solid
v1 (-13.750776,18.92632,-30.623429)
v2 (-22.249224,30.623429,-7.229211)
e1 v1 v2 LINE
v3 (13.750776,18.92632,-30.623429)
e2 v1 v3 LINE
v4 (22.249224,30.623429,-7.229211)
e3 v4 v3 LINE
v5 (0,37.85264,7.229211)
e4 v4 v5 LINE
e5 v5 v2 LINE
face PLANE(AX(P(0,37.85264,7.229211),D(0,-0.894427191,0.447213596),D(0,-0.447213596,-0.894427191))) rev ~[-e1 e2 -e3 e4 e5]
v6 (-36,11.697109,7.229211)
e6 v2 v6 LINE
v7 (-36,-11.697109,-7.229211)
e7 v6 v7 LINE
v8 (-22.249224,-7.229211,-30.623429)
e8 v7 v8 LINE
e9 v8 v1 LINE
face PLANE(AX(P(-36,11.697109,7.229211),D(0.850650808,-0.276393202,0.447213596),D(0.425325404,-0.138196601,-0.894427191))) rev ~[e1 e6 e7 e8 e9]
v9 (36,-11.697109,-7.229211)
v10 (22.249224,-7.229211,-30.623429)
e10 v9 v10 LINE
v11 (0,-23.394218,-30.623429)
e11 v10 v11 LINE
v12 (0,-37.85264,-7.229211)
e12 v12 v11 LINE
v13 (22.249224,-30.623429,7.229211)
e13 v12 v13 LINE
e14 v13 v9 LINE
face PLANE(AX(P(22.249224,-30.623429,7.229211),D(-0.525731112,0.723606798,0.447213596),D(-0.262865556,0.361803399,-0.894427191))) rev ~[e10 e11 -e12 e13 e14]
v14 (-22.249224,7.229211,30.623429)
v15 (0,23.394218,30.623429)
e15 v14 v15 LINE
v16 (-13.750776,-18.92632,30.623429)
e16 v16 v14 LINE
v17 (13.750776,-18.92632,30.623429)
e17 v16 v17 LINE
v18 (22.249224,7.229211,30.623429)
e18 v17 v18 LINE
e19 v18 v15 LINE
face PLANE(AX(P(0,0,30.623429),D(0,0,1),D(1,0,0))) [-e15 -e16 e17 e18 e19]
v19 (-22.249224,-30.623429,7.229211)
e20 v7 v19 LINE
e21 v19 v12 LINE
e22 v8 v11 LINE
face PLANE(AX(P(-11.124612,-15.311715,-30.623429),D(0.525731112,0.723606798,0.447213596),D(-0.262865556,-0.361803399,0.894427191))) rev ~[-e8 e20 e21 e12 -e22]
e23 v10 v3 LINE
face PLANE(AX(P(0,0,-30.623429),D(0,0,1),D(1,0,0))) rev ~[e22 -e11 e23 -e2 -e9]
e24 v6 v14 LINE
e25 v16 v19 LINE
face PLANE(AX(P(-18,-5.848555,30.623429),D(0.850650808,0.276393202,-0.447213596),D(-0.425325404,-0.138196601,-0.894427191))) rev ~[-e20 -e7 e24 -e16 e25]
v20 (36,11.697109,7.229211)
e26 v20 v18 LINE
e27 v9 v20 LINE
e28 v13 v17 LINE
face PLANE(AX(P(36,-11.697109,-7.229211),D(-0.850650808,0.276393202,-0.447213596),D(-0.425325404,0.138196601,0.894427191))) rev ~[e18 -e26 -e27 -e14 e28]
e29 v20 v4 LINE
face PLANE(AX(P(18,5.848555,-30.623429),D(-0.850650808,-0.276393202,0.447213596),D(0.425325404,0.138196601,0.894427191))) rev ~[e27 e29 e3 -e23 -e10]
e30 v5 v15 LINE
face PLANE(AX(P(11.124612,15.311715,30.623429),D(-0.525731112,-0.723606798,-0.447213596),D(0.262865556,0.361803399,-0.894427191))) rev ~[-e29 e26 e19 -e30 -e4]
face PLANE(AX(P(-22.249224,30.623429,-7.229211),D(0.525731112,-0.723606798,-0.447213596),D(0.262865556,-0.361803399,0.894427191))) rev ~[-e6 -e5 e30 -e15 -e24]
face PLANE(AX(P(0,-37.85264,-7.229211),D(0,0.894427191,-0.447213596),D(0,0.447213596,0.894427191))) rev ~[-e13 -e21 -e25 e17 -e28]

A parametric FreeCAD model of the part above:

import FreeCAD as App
import Part
import Sketcher
from FreeCAD import Vector
Q = App.Units.Quantity

doc = App.newDocument("Part")
body = doc.addObject("PartDesign::Body", "Body")

sketch1 = body.newObject("Sketcher::SketchObject", "Sketch")
sketch1.AttachmentSupport = (doc.getObject("XY_Plane"), [""])
sketch1.MapMode = "FlatFace"
sketch1.addGeometry(Part.LineSegment(Vector(-36, 12, 0), Vector(-36, -12, 0)), False)
sketch1.addGeometry(Part.LineSegment(Vector(-36, -12, 0), Vector(-22, -31, 0)), False)
sketch1.addGeometry(Part.LineSegment(Vector(-22, -31, 0), Vector(0, -38, 0)), False)
sketch1.addGeometry(Part.LineSegment(Vector(0, -38, 0), Vector(22, -31, 0)), False)
sketch1.addGeometry(Part.LineSegment(Vector(22, -31, 0), Vector(36, -12, 0)), False)
sketch1.addGeometry(Part.LineSegment(Vector(36, -12, 0), Vector(36, 12, 0)), False)
sketch1.addGeometry(Part.LineSegment(Vector(36, 12, 0), Vector(22, 31, 0)), False)
sketch1.addGeometry(Part.LineSegment(Vector(22, 31, 0), Vector(0, 38, 0)), False)
sketch1.addGeometry(Part.LineSegment(Vector(0, 38, 0), Vector(-22, 31, 0)), False)
sketch1.addGeometry(Part.LineSegment(Vector(-22, 31, 0), Vector(-36, 12, 0)), False)
sketch1.addConstraint(Sketcher.Constraint("Coincident", 0, 2, 1, 1))
sketch1.addConstraint(Sketcher.Constraint("Coincident", 1, 2, 2, 1))
sketch1.addConstraint(Sketcher.Constraint("Coincident", 2, 2, 3, 1))
sketch1.addConstraint(Sketcher.Constraint("Coincident", 3, 2, 4, 1))
sketch1.addConstraint(Sketcher.Constraint("Coincident", 4, 2, 5, 1))
sketch1.addConstraint(Sketcher.Constraint("Coincident", 5, 2, 6, 1))
sketch1.addConstraint(Sketcher.Constraint("Coincident", 6, 2, 7, 1))
sketch1.addConstraint(Sketcher.Constraint("Coincident", 7, 2, 8, 1))
sketch1.addConstraint(Sketcher.Constraint("Coincident", 8, 2, 9, 1))
sketch1.addConstraint(Sketcher.Constraint("Coincident", 9, 2, 0, 1))
sketch1.addConstraint(Sketcher.Constraint("Vertical", 0))
sketch1.addConstraint(Sketcher.Constraint("Vertical", 5))
sketch1.addConstraint(Sketcher.Constraint("Symmetric", 0, 2, 5, 2, -1, 1))
sketch1.addConstraint(Sketcher.Constraint("Symmetric", 1, 2, 6, 2, -1, 1))
sketch1.addConstraint(Sketcher.Constraint("Symmetric", 2, 2, 7, 2, -1, 1))
sketch1.addConstraint(Sketcher.Constraint("Symmetric", 3, 2, 8, 2, -1, 1))
sketch1.addConstraint(Sketcher.Constraint("Symmetric", 1, 2, 3, 2, -2))
sketch1.addConstraint(Sketcher.Constraint("PointOnObject", 2, 2, -2))
sketch1.addConstraint(Sketcher.Constraint("Parallel", 4, 9))
sketch1.addConstraint(Sketcher.Constraint("Horizontal", 0, 2, 4, 2))
sketch1.addConstraint(Sketcher.Constraint("Equal", 1, 2))
sketch1.addConstraint(Sketcher.Constraint("Angle", 1, Q("-54 deg")))
sketch1.addConstraint(Sketcher.Constraint("Angle", 2, Q("-18 deg")))
sketch1.addConstraint(Sketcher.Constraint("DistanceX", 0, 2, -1, 1, 36.0))
sketch1.addConstraint(Sketcher.Constraint("DistanceY", 0, 2, 0, 1, 23.394218))
pad1 = body.newObject("PartDesign::Pad", "Pad")
pad1.Profile = sketch1
pad1.Length = 61.246858
pad1.Midplane = True

sketch2 = body.newObject("Sketcher::SketchObject", "Sketch001")
sketch2.AttachmentSupport = (doc.getObject("YZ_Plane"), [""])
sketch2.MapMode = "FlatFace"
sketch2.addGeometry(Part.LineSegment(Vector(-38, -7, 0), Vector(-19, 31, 0)), False)
sketch2.addGeometry(Part.LineSegment(Vector(-19, 31, 0), Vector(-38, 31, 0)), False)
sketch2.addGeometry(Part.LineSegment(Vector(-38, 31, 0), Vector(-38, -7, 0)), False)
sketch2.addConstraint(Sketcher.Constraint("Coincident", 0, 2, 1, 1))
sketch2.addConstraint(Sketcher.Constraint("Coincident", 1, 2, 2, 1))
sketch2.addConstraint(Sketcher.Constraint("Coincident", 2, 2, 0, 1))
sketch2.addConstraint(Sketcher.Constraint("Horizontal", 1))
sketch2.addConstraint(Sketcher.Constraint("Vertical", 2))
sketch2.addConstraint(Sketcher.Constraint("DistanceX", 1, 2, 1, 1, 18.92632))
sketch2.addConstraint(Sketcher.Constraint("DistanceY", 2, 2, 2, 1, 37.85264))
sketch2.addConstraint(Sketcher.Constraint("DistanceX", 0, 2, -1, 1, 18.92632))
sketch2.addConstraint(Sketcher.Constraint("DistanceY", -1, 1, 0, 2, 30.623429))
pocket1 = body.newObject("PartDesign::Pocket", "Pocket")
pocket1.Profile = sketch2
pocket1.Length = 100
pocket1.Midplane = True

sketch3 = body.newObject("Sketcher::SketchObject", "Sketch002")
sketch3.Placement = App.Placement(Vector(0, 0, 0), App.Rotation(Vector(-0.951056516, 0.309016994, 0), Vector(0, 0, 0.999999999), Vector(0.309016994, 0.951056516, 0), "ZXY"))
sketch3.addGeometry(Part.LineSegment(Vector(-38, -7, 0), Vector(-19, 31, 0)), False)
sketch3.addGeometry(Part.LineSegment(Vector(-19, 31, 0), Vector(-38, 31, 0)), False)
sketch3.addGeometry(Part.LineSegment(Vector(-38, 31, 0), Vector(-38, -7, 0)), False)
sketch3.addConstraint(Sketcher.Constraint("Coincident", 0, 2, 1, 1))
sketch3.addConstraint(Sketcher.Constraint("Coincident", 1, 2, 2, 1))
sketch3.addConstraint(Sketcher.Constraint("Coincident", 2, 2, 0, 1))
sketch3.addConstraint(Sketcher.Constraint("Horizontal", 1))
sketch3.addConstraint(Sketcher.Constraint("Vertical", 2))
sketch3.addConstraint(Sketcher.Constraint("DistanceX", 1, 2, 1, 1, 18.92632))
sketch3.addConstraint(Sketcher.Constraint("DistanceY", 2, 2, 2, 1, 37.85264))
sketch3.addConstraint(Sketcher.Constraint("DistanceX", 0, 2, -1, 1, 18.92632))
sketch3.addConstraint(Sketcher.Constraint("DistanceY", -1, 1, 0, 2, 30.623429))
pocket2 = body.newObject("PartDesign::Pocket", "Pocket001")
pocket2.Profile = sketch3
pocket2.Length = 1000
pocket2.Midplane = True

sketch4 = body.newObject("Sketcher::SketchObject", "Sketch003")
sketch4.Placement = App.Placement(Vector(0, 0, 0), App.Rotation(Vector(0.587785252, 0.809016994, 0), Vector(0, 0, 0.999999999), Vector(0.809016994, -0.587785252, 0), "ZXY"))
sketch4.addGeometry(Part.LineSegment(Vector(38, -7, 0), Vector(38, 31, 0)), False)
sketch4.addGeometry(Part.LineSegment(Vector(38, 31, 0), Vector(19, 31, 0)), False)
sketch4.addGeometry(Part.LineSegment(Vector(19, 31, 0), Vector(38, -7, 0)), False)
sketch4.addConstraint(Sketcher.Constraint("Coincident", 0, 2, 1, 1))
sketch4.addConstraint(Sketcher.Constraint("Coincident", 1, 2, 2, 1))
sketch4.addConstraint(Sketcher.Constraint("Coincident", 2, 2, 0, 1))
sketch4.addConstraint(Sketcher.Constraint("Vertical", 0))
sketch4.addConstraint(Sketcher.Constraint("Horizontal", 1))
sketch4.addConstraint(Sketcher.Constraint("DistanceX", 1, 2, 1, 1, 18.92632))
sketch4.addConstraint(Sketcher.Constraint("DistanceY", 0, 1, 0, 2, 37.85264))
sketch4.addConstraint(Sketcher.Constraint("DistanceX", -1, 1, 0, 2, 37.85264))
sketch4.addConstraint(Sketcher.Constraint("DistanceY", -1, 1, 0, 2, 30.623429))
pocket3 = body.newObject("PartDesign::Pocket", "Pocket002")
pocket3.Profile = sketch4
pocket3.Length = 1000
pocket3.Midplane = True

sketch5 = body.newObject("Sketcher::SketchObject", "Sketch004")
sketch5.Placement = App.Placement(Vector(0, 0, 0), App.Rotation(Vector(0.587785252, -0.809016994, 0), Vector(0, 0, 0.999999999), Vector(-0.809016994, -0.587785252, 0), "ZXY"))
sketch5.addGeometry(Part.LineSegment(Vector(-19, 31, 0), Vector(-38, 31, 0)), False)
sketch5.addGeometry(Part.LineSegment(Vector(-38, 31, 0), Vector(-38, -7, 0)), False)
sketch5.addGeometry(Part.LineSegment(Vector(-38, -7, 0), Vector(-19, 31, 0)), False)
sketch5.addConstraint(Sketcher.Constraint("Coincident", 0, 2, 1, 1))
sketch5.addConstraint(Sketcher.Constraint("Coincident", 1, 2, 2, 1))
sketch5.addConstraint(Sketcher.Constraint("Coincident", 2, 2, 0, 1))
sketch5.addConstraint(Sketcher.Constraint("Horizontal", 0))
sketch5.addConstraint(Sketcher.Constraint("Vertical", 1))
sketch5.addConstraint(Sketcher.Constraint("DistanceX", 0, 2, 0, 1, 18.92632))
sketch5.addConstraint(Sketcher.Constraint("DistanceY", 1, 2, 1, 1, 37.85264))
sketch5.addConstraint(Sketcher.Constraint("DistanceX", 0, 2, -1, 1, 37.85264))
sketch5.addConstraint(Sketcher.Constraint("DistanceY", -1, 1, 0, 2, 30.623429))
pocket4 = body.newObject("PartDesign::Pocket", "Pocket003")
pocket4.Profile = sketch5
pocket4.Length = 1000
pocket4.Midplane = True

sketch6 = body.newObject("Sketcher::SketchObject", "Sketch005")
sketch6.Placement = App.Placement(Vector(0, 0, 0), App.Rotation(Vector(-0.951056516, -0.309016994, 0), Vector(0, 0, 0.999999999), Vector(-0.309016994, 0.951056516, 0), "ZXY"))
sketch6.addGeometry(Part.LineSegment(Vector(38, 31, 0), Vector(19, 31, 0)), False)
sketch6.addGeometry(Part.LineSegment(Vector(19, 31, 0), Vector(38, -7, 0)), False)
sketch6.addGeometry(Part.LineSegment(Vector(38, -7, 0), Vector(38, 31, 0)), False)
sketch6.addConstraint(Sketcher.Constraint("Coincident", 0, 2, 1, 1))
sketch6.addConstraint(Sketcher.Constraint("Coincident", 1, 2, 2, 1))
sketch6.addConstraint(Sketcher.Constraint("Coincident", 2, 2, 0, 1))
sketch6.addConstraint(Sketcher.Constraint("Horizontal", 0))
sketch6.addConstraint(Sketcher.Constraint("Vertical", 2))
sketch6.addConstraint(Sketcher.Constraint("DistanceX", 0, 2, 0, 1, 18.92632))
sketch6.addConstraint(Sketcher.Constraint("DistanceY", 2, 1, 2, 2, 37.85264))
sketch6.addConstraint(Sketcher.Constraint("DistanceX", -1, 1, 0, 2, 18.92632))
sketch6.addConstraint(Sketcher.Constraint("DistanceY", -1, 1, 0, 2, 30.623429))
pocket5 = body.newObject("PartDesign::Pocket", "Pocket004")
pocket5.Profile = sketch6
pocket5.Length = 1000
pocket5.Midplane = True

sketch7 = body.newObject("Sketcher::SketchObject", "Sketch006")
sketch7.AttachmentSupport = (doc.getObject("YZ_Plane"), [""])
sketch7.MapMode = "FlatFace"
sketch7.addGeometry(Part.LineSegment(Vector(38, 7, 0), Vector(19, -31, 0)), False)
sketch7.addGeometry(Part.LineSegment(Vector(19, -31, 0), Vector(38, -31, 0)), False)
sketch7.addGeometry(Part.LineSegment(Vector(38, -31, 0), Vector(38, 7, 0)), False)
sketch7.addConstraint(Sketcher.Constraint("Coincident", 0, 2, 1, 1))
sketch7.addConstraint(Sketcher.Constraint("Coincident", 1, 2, 2, 1))
sketch7.addConstraint(Sketcher.Constraint("Coincident", 2, 2, 0, 1))
sketch7.addConstraint(Sketcher.Constraint("Horizontal", 1))
sketch7.addConstraint(Sketcher.Constraint("Vertical", 2))
sketch7.addConstraint(Sketcher.Constraint("DistanceX", 1, 1, 1, 2, 18.92632))
sketch7.addConstraint(Sketcher.Constraint("DistanceY", 2, 1, 2, 2, 37.85264))
sketch7.addConstraint(Sketcher.Constraint("DistanceX", -1, 1, 0, 2, 18.92632))
sketch7.addConstraint(Sketcher.Constraint("DistanceY", 0, 2, -1, 1, 30.623429))
pocket6 = body.newObject("PartDesign::Pocket", "Pocket005")
pocket6.Profile = sketch7
pocket6.Length = 1000
pocket6.Midplane = True

sketch8 = body.newObject("Sketcher::SketchObject", "Sketch007")
sketch8.Placement = App.Placement(Vector(0, 0, 0), App.Rotation(Vector(-0.951056516, -0.309016994, 0), Vector(0, 0, 0.999999999), Vector(-0.309016994, 0.951056516, 0), "ZXY"))
sketch8.addGeometry(Part.LineSegment(Vector(-38, -31, 0), Vector(-19, -31, 0)), False)
sketch8.addGeometry(Part.LineSegment(Vector(-19, -31, 0), Vector(-38, 7, 0)), False)
sketch8.addGeometry(Part.LineSegment(Vector(-38, 7, 0), Vector(-38, -31, 0)), False)
sketch8.addConstraint(Sketcher.Constraint("Coincident", 0, 2, 1, 1))
sketch8.addConstraint(Sketcher.Constraint("Coincident", 1, 2, 2, 1))
sketch8.addConstraint(Sketcher.Constraint("Coincident", 2, 2, 0, 1))
sketch8.addConstraint(Sketcher.Constraint("Horizontal", 0))
sketch8.addConstraint(Sketcher.Constraint("Vertical", 2))
sketch8.addConstraint(Sketcher.Constraint("DistanceX", 0, 1, 0, 2, 18.92632))
sketch8.addConstraint(Sketcher.Constraint("DistanceY", 2, 2, 2, 1, 37.85264))
sketch8.addConstraint(Sketcher.Constraint("DistanceX", 0, 2, -1, 1, 18.92632))
sketch8.addConstraint(Sketcher.Constraint("DistanceY", 0, 2, -1, 1, 30.623429))
pocket7 = body.newObject("PartDesign::Pocket", "Pocket006")
pocket7.Profile = sketch8
pocket7.Length = 1000
pocket7.Midplane = True

sketch9 = body.newObject("Sketcher::SketchObject", "Sketch008")
sketch9.Placement = App.Placement(Vector(0, 0, 0), App.Rotation(Vector(0.587785252, -0.809016994, 0), Vector(0, 0, 0.999999999), Vector(-0.809016994, -0.587785252, 0), "ZXY"))
sketch9.addGeometry(Part.LineSegment(Vector(38, 7, 0), Vector(19, -31, 0)), False)
sketch9.addGeometry(Part.LineSegment(Vector(19, -31, 0), Vector(38, -31, 0)), False)
sketch9.addGeometry(Part.LineSegment(Vector(38, -31, 0), Vector(38, 7, 0)), False)
sketch9.addConstraint(Sketcher.Constraint("Coincident", 0, 2, 1, 1))
sketch9.addConstraint(Sketcher.Constraint("Coincident", 1, 2, 2, 1))
sketch9.addConstraint(Sketcher.Constraint("Coincident", 2, 2, 0, 1))
sketch9.addConstraint(Sketcher.Constraint("Horizontal", 1))
sketch9.addConstraint(Sketcher.Constraint("Vertical", 2))
sketch9.addConstraint(Sketcher.Constraint("DistanceX", 1, 1, 1, 2, 18.92632))
sketch9.addConstraint(Sketcher.Constraint("DistanceY", 2, 1, 2, 2, 37.85264))
sketch9.addConstraint(Sketcher.Constraint("DistanceX", -1, 1, 0, 2, 18.92632))
sketch9.addConstraint(Sketcher.Constraint("DistanceY", 0, 2, -1, 1, 30.623429))
pocket8 = body.newObject("PartDesign::Pocket", "Pocket007")
pocket8.Profile = sketch9
pocket8.Length = 1000
pocket8.Midplane = True

sketch10 = body.newObject("Sketcher::SketchObject", "Sketch009")
sketch10.Placement = App.Placement(Vector(0, 0, 0), App.Rotation(Vector(0.587785252, 0.809016994, 0), Vector(0, 0, 0.999999999), Vector(0.809016994, -0.587785252, 0), "ZXY"))
sketch10.addGeometry(Part.LineSegment(Vector(-38, -31, 0), Vector(-19, -31, 0)), False)
sketch10.addGeometry(Part.LineSegment(Vector(-19, -31, 0), Vector(-38, 7, 0)), False)
sketch10.addGeometry(Part.LineSegment(Vector(-38, 7, 0), Vector(-38, -31, 0)), False)
sketch10.addConstraint(Sketcher.Constraint("Coincident", 0, 2, 1, 1))
sketch10.addConstraint(Sketcher.Constraint("Coincident", 1, 2, 2, 1))
sketch10.addConstraint(Sketcher.Constraint("Coincident", 2, 2, 0, 1))
sketch10.addConstraint(Sketcher.Constraint("Horizontal", 0))
sketch10.addConstraint(Sketcher.Constraint("Vertical", 2))
sketch10.addConstraint(Sketcher.Constraint("DistanceX", 0, 1, 0, 2, 18.92632))
sketch10.addConstraint(Sketcher.Constraint("DistanceY", 2, 2, 2, 1, 37.85264))
sketch10.addConstraint(Sketcher.Constraint("DistanceX", 0, 2, -1, 1, 18.92632))
sketch10.addConstraint(Sketcher.Constraint("DistanceY", 0, 2, -1, 1, 30.623429))
pocket9 = body.newObject("PartDesign::Pocket", "Pocket008")
pocket9.Profile = sketch10
pocket9.Length = 1000
pocket9.Midplane = True

sketch11 = body.newObject("Sketcher::SketchObject", "Sketch010")
sketch11.Placement = App.Placement(Vector(0, 0, 0), App.Rotation(Vector(-0.951056516, 0.309016994, 0), Vector(0, 0, 0.999999999), Vector(0.309016994, 0.951056516, 0), "ZXY"))
sketch11.addGeometry(Part.LineSegment(Vector(38, 7, 0), Vector(19, -31, 0)), False)
sketch11.addGeometry(Part.LineSegment(Vector(19, -31, 0), Vector(38, -31, 0)), False)
sketch11.addGeometry(Part.LineSegment(Vector(38, -31, 0), Vector(38, 7, 0)), False)
sketch11.addConstraint(Sketcher.Constraint("Coincident", 0, 2, 1, 1))
sketch11.addConstraint(Sketcher.Constraint("Coincident", 1, 2, 2, 1))
sketch11.addConstraint(Sketcher.Constraint("Coincident", 2, 2, 0, 1))
sketch11.addConstraint(Sketcher.Constraint("Horizontal", 1))
sketch11.addConstraint(Sketcher.Constraint("Vertical", 2))
sketch11.addConstraint(Sketcher.Constraint("DistanceX", 1, 1, 1, 2, 18.92632))
sketch11.addConstraint(Sketcher.Constraint("DistanceY", 2, 1, 2, 2, 37.85264))
sketch11.addConstraint(Sketcher.Constraint("DistanceX", -1, 1, 0, 2, 18.92632))
sketch11.addConstraint(Sketcher.Constraint("DistanceY", 0, 2, -1, 1, 30.623429))
pocket10 = body.newObject("PartDesign::Pocket", "Pocket009")
pocket10.Profile = sketch11
pocket10.Length = 1000
pocket10.Midplane = True

doc.recompute()
